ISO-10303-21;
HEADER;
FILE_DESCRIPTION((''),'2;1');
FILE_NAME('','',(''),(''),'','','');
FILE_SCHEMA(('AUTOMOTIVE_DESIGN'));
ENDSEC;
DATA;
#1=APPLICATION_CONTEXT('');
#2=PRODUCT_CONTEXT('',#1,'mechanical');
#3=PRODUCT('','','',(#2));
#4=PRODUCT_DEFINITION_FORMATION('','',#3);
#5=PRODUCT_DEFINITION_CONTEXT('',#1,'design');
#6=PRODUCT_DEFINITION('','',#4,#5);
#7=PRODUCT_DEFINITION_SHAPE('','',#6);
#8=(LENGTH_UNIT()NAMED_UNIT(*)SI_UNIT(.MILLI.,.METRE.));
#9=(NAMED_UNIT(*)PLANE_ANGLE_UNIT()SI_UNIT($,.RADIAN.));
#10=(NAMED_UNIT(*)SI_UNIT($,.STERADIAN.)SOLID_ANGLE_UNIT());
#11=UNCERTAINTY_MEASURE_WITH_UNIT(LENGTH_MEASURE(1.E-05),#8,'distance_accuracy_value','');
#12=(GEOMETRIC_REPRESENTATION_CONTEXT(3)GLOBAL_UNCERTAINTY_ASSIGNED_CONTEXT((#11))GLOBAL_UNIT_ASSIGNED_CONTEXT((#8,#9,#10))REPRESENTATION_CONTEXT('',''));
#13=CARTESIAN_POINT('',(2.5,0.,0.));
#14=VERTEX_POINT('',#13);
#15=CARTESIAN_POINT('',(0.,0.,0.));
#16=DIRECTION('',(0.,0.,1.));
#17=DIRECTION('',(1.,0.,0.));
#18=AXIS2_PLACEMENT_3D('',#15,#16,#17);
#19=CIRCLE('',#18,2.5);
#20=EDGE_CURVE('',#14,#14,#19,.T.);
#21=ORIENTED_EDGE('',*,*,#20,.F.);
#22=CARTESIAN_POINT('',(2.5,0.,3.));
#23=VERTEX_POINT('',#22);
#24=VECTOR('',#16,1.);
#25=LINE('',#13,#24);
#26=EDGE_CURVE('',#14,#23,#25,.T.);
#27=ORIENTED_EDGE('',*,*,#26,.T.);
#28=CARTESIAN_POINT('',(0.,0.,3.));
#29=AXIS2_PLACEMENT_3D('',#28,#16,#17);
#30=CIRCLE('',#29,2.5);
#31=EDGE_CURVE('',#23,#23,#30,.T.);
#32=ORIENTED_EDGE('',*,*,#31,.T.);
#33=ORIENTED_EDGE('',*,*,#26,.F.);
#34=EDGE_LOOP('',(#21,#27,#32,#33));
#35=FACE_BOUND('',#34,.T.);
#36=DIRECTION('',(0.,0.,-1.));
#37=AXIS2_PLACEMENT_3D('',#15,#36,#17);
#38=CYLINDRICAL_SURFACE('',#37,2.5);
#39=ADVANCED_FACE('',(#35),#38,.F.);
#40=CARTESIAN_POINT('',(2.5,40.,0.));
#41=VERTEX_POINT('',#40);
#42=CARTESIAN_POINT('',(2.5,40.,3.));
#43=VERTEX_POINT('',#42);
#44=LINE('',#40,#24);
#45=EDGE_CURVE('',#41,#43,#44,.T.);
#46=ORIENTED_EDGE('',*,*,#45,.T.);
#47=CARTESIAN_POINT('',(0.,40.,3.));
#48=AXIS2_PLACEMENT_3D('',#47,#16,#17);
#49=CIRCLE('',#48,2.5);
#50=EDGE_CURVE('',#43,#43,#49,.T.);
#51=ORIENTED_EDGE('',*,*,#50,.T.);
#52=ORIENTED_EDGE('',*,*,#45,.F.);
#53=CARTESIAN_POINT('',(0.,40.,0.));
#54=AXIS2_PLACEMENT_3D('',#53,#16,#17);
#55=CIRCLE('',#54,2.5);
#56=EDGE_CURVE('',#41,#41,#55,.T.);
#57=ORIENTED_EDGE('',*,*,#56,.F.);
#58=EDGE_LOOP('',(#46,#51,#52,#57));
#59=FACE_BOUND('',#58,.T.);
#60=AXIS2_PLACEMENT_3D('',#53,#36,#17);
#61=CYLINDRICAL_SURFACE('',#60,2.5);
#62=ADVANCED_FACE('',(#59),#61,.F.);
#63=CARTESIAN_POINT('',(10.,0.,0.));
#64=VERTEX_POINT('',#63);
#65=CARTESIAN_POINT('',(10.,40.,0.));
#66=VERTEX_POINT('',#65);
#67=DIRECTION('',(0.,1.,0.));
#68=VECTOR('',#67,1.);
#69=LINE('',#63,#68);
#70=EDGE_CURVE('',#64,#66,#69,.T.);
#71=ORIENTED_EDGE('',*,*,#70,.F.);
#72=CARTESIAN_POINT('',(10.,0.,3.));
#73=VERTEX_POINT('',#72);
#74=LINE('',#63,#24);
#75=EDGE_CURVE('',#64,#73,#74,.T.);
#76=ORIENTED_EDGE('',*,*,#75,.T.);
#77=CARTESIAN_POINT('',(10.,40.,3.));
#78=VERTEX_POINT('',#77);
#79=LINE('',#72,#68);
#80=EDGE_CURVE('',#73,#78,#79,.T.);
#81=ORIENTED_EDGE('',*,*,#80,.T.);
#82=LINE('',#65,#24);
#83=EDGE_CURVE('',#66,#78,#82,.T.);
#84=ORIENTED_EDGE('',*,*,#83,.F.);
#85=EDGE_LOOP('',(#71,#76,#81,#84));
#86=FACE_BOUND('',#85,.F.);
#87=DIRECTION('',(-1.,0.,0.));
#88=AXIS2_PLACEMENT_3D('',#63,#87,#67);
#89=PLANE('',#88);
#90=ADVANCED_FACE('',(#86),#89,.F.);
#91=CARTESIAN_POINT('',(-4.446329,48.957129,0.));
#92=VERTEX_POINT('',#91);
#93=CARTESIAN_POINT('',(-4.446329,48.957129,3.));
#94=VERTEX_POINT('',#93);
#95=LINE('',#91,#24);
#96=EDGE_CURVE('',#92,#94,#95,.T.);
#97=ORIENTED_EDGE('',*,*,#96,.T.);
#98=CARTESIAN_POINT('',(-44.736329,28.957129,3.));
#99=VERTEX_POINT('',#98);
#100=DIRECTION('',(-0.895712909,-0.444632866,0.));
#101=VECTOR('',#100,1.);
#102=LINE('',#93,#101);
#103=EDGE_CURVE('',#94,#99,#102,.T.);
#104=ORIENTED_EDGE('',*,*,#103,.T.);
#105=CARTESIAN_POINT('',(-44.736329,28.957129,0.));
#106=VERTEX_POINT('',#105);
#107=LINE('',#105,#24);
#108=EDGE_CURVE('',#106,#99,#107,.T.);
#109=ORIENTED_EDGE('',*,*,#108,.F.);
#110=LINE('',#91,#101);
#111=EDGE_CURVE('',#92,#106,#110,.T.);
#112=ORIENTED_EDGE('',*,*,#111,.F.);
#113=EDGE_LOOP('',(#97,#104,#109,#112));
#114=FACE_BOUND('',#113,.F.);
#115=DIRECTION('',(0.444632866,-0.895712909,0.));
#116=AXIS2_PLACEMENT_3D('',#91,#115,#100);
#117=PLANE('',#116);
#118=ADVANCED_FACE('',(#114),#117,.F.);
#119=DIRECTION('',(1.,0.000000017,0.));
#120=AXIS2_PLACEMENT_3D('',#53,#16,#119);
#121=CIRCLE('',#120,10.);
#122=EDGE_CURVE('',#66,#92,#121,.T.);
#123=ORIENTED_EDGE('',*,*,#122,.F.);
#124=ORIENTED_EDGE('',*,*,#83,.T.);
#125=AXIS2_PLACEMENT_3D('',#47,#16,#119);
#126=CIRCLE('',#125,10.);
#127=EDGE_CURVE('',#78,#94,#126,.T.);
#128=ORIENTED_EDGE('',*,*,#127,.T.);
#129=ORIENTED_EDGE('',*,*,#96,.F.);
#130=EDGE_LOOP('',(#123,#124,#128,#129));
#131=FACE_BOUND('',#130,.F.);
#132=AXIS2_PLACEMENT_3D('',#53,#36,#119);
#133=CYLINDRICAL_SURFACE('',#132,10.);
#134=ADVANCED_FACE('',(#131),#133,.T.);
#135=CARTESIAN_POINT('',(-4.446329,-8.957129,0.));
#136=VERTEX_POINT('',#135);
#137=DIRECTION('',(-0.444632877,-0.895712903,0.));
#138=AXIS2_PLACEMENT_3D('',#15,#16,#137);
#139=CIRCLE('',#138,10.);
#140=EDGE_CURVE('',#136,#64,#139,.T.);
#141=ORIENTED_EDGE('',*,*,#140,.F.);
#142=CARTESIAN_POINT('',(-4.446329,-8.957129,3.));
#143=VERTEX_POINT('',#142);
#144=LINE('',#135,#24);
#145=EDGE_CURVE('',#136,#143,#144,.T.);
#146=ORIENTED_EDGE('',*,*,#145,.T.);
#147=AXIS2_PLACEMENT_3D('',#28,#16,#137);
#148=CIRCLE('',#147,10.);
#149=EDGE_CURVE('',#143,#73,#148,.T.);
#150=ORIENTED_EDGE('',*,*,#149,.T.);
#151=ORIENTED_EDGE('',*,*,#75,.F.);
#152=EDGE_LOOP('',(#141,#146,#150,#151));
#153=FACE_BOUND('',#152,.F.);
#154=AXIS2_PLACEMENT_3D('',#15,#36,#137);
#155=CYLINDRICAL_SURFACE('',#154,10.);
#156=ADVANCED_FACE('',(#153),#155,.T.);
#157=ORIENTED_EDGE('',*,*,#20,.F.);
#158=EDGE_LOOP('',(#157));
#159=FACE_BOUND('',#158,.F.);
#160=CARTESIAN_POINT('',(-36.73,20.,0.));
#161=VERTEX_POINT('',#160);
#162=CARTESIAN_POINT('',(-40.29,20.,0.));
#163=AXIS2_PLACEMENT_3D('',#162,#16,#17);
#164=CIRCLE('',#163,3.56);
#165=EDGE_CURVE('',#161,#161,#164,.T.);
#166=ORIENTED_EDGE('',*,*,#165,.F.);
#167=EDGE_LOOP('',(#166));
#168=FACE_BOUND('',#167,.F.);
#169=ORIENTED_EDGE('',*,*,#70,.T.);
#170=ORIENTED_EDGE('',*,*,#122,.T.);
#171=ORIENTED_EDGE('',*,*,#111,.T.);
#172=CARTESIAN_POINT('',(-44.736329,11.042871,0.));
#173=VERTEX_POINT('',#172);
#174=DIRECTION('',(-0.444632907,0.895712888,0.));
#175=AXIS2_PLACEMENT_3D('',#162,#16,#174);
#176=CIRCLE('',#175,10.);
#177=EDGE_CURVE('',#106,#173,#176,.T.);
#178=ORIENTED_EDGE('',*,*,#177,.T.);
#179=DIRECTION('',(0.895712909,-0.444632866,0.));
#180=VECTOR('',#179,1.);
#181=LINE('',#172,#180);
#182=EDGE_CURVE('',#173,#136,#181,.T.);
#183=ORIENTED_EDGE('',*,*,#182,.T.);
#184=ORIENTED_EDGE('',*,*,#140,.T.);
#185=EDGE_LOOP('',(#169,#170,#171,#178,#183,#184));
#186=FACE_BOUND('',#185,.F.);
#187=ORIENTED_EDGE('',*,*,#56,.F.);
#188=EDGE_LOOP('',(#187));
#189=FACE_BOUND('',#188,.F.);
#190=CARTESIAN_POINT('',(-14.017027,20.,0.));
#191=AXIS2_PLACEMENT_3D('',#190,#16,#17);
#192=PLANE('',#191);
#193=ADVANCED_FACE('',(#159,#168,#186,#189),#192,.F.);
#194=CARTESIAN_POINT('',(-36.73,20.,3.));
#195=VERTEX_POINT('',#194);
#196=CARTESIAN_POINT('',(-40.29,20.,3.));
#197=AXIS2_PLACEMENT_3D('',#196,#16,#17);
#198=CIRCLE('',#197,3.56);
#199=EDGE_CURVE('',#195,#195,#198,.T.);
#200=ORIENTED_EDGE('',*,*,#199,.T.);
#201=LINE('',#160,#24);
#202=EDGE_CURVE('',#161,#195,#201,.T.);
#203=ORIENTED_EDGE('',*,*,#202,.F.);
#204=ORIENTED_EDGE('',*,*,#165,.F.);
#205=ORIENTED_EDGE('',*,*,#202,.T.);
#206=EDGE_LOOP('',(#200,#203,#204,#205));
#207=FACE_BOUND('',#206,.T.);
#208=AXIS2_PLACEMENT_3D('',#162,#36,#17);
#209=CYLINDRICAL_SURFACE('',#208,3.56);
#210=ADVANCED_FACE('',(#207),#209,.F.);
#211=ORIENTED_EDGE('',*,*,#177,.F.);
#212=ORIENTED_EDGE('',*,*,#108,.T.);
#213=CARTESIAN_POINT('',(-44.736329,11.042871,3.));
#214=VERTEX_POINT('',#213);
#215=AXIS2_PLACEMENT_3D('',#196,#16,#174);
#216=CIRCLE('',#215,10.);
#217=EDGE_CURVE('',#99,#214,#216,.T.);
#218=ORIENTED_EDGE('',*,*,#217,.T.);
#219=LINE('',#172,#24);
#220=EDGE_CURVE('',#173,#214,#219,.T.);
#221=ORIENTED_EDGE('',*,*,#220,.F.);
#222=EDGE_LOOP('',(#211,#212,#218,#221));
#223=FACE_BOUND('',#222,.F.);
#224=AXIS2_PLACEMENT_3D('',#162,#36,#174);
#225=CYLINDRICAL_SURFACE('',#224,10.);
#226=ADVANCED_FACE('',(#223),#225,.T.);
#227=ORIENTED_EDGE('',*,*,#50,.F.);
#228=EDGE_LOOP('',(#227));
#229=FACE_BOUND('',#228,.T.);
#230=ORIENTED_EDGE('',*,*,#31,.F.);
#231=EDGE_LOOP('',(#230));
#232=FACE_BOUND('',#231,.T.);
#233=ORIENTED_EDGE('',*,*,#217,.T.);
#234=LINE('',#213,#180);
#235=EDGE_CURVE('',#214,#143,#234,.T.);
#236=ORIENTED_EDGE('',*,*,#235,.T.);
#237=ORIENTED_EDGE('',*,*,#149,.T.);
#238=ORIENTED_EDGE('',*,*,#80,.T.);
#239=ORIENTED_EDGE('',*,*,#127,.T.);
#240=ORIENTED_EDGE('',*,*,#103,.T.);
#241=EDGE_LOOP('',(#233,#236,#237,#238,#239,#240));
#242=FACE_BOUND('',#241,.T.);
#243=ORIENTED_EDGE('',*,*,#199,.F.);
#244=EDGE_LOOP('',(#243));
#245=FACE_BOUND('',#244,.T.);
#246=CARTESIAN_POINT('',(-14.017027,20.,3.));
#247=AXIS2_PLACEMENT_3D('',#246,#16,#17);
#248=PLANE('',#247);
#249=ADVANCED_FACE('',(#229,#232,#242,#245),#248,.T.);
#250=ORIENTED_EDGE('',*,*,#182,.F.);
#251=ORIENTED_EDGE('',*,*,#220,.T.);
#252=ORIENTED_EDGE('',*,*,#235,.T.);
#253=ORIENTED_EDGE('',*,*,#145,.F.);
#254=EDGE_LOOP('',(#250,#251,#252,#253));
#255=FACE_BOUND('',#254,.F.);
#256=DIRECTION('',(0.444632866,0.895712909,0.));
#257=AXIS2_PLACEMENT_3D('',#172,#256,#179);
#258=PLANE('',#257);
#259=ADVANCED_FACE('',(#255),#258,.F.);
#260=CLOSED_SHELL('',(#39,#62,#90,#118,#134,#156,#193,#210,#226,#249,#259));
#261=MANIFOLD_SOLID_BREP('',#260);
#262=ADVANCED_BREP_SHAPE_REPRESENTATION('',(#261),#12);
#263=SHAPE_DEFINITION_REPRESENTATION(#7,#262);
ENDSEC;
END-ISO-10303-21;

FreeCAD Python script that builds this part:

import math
import FreeCAD as App
import Part
import Sketcher

doc = App.newDocument("Part")
params = doc.addObject("Spreadsheet::Sheet", "Params")
for row, (alias, value) in enumerate([
    ("sketch1_diameter", "5 mm"),
    ("sketch1_radius", "10 mm"),
    ("sketch1_diameter2", "7.12 mm"),
    ("sketch1_height", "40 mm"),
    ("pad1_length", "3 mm"),
], start=1):
    params.set(f"A{row}", alias)
    params.set(f"B{row}", "=" + value)
    params.setAlias(f"B{row}", alias)

body = doc.addObject("PartDesign::Body", "Body")

sketch1 = doc.addObject("Sketcher::SketchObject", "Sketch")
body.addObject(sketch1)
sketch1.AttachmentSupport = (doc.XY_Plane, [""])
sketch1.MapMode = "FlatFace"
sketch1.addGeometry(Part.LineSegment(App.Vector(10, 0, 0), App.Vector(10, 40, 0)), False)
sketch1.addGeometry(Part.ArcOfCircle(Part.Circle(App.Vector(0, 40, 0), App.Vector(0, 0, 1), 10), math.radians(0), math.radians(116)), False)
sketch1.addGeometry(Part.LineSegment(App.Vector(-4.4, 49, 0), App.Vector(-44.7, 29, 0)), False)
sketch1.addGeometry(Part.ArcOfCircle(Part.Circle(App.Vector(-40.3, 20, 0), App.Vector(0, 0, 1), 10), math.radians(116), math.radians(244)), False)
sketch1.addGeometry(Part.LineSegment(App.Vector(-44.7, 11, 0), App.Vector(-4.4, -9, 0)), False)
sketch1.addGeometry(Part.ArcOfCircle(Part.Circle(App.Vector(0, 0, 0), App.Vector(0, 0, 1), 10), math.radians(-116), math.radians(0)), False)
sketch1.addGeometry(Part.Circle(App.Vector(0, 0, 0), App.Vector(0, 0, 1), 2.5), False)
sketch1.addGeometry(Part.Circle(App.Vector(-40.3, 20, 0), App.Vector(0, 0, 1), 3.6), False)
sketch1.addGeometry(Part.Circle(App.Vector(0, 40, 0), App.Vector(0, 0, 1), 2.5), False)
sketch1.addConstraint(Sketcher.Constraint("Tangent", 0, 2, 1, 1))
sketch1.addConstraint(Sketcher.Constraint("Tangent", 1, 2, 2, 1))
sketch1.addConstraint(Sketcher.Constraint("Tangent", 2, 2, 3, 1))
sketch1.addConstraint(Sketcher.Constraint("Tangent", 3, 2, 4, 1))
sketch1.addConstraint(Sketcher.Constraint("Tangent", 4, 2, 5, 1))
sketch1.addConstraint(Sketcher.Constraint("Tangent", 5, 2, 0, 1))
sketch1.addConstraint(Sketcher.Constraint("Vertical", 0))
sketch1.addConstraint(Sketcher.Constraint("Coincident", 5, 3, -1, 1))
sketch1.addConstraint(Sketcher.Constraint("Coincident", 6, 3, -1, 1))
sketch1.addConstraint(Sketcher.Constraint("Coincident", 7, 3, 3, 3))
sketch1.addConstraint(Sketcher.Constraint("Coincident", 8, 3, 1, 3))
sketch1.addConstraint(Sketcher.Constraint("Equal", 1, 3))
sketch1.addConstraint(Sketcher.Constraint("Equal", 3, 5))
sketch1.addConstraint(Sketcher.Constraint("Equal", 6, 8))
sketch1.addConstraint(Sketcher.Constraint("Vertical", 2, 2, 3, 2))
sketch1.addConstraint(Sketcher.Constraint("Diameter", 6, 5.0))
sketch1.addConstraint(Sketcher.Constraint("Radius", 1, 10.0))
sketch1.addConstraint(Sketcher.Constraint("Diameter", 7, 7.12))
sketch1.addConstraint(Sketcher.Constraint("DistanceY", 0, 1, 0, 2, 40.0))
sketch1.addConstraint(Sketcher.Constraint("DistanceX", 3, 3, -1, 1, 40.29))
sketch1.setExpression("Constraints[15]", "Params.sketch1_diameter")
sketch1.setExpression("Constraints[16]", "Params.sketch1_radius")
sketch1.setExpression("Constraints[17]", "Params.sketch1_diameter2")
sketch1.setExpression("Constraints[18]", "Params.sketch1_height")
pad1 = doc.addObject("PartDesign::Pad", "Pad")
body.addObject(pad1)
pad1.Profile = sketch1
pad1.setExpression("Length", "Params.pad1_length")

doc.recompute()
